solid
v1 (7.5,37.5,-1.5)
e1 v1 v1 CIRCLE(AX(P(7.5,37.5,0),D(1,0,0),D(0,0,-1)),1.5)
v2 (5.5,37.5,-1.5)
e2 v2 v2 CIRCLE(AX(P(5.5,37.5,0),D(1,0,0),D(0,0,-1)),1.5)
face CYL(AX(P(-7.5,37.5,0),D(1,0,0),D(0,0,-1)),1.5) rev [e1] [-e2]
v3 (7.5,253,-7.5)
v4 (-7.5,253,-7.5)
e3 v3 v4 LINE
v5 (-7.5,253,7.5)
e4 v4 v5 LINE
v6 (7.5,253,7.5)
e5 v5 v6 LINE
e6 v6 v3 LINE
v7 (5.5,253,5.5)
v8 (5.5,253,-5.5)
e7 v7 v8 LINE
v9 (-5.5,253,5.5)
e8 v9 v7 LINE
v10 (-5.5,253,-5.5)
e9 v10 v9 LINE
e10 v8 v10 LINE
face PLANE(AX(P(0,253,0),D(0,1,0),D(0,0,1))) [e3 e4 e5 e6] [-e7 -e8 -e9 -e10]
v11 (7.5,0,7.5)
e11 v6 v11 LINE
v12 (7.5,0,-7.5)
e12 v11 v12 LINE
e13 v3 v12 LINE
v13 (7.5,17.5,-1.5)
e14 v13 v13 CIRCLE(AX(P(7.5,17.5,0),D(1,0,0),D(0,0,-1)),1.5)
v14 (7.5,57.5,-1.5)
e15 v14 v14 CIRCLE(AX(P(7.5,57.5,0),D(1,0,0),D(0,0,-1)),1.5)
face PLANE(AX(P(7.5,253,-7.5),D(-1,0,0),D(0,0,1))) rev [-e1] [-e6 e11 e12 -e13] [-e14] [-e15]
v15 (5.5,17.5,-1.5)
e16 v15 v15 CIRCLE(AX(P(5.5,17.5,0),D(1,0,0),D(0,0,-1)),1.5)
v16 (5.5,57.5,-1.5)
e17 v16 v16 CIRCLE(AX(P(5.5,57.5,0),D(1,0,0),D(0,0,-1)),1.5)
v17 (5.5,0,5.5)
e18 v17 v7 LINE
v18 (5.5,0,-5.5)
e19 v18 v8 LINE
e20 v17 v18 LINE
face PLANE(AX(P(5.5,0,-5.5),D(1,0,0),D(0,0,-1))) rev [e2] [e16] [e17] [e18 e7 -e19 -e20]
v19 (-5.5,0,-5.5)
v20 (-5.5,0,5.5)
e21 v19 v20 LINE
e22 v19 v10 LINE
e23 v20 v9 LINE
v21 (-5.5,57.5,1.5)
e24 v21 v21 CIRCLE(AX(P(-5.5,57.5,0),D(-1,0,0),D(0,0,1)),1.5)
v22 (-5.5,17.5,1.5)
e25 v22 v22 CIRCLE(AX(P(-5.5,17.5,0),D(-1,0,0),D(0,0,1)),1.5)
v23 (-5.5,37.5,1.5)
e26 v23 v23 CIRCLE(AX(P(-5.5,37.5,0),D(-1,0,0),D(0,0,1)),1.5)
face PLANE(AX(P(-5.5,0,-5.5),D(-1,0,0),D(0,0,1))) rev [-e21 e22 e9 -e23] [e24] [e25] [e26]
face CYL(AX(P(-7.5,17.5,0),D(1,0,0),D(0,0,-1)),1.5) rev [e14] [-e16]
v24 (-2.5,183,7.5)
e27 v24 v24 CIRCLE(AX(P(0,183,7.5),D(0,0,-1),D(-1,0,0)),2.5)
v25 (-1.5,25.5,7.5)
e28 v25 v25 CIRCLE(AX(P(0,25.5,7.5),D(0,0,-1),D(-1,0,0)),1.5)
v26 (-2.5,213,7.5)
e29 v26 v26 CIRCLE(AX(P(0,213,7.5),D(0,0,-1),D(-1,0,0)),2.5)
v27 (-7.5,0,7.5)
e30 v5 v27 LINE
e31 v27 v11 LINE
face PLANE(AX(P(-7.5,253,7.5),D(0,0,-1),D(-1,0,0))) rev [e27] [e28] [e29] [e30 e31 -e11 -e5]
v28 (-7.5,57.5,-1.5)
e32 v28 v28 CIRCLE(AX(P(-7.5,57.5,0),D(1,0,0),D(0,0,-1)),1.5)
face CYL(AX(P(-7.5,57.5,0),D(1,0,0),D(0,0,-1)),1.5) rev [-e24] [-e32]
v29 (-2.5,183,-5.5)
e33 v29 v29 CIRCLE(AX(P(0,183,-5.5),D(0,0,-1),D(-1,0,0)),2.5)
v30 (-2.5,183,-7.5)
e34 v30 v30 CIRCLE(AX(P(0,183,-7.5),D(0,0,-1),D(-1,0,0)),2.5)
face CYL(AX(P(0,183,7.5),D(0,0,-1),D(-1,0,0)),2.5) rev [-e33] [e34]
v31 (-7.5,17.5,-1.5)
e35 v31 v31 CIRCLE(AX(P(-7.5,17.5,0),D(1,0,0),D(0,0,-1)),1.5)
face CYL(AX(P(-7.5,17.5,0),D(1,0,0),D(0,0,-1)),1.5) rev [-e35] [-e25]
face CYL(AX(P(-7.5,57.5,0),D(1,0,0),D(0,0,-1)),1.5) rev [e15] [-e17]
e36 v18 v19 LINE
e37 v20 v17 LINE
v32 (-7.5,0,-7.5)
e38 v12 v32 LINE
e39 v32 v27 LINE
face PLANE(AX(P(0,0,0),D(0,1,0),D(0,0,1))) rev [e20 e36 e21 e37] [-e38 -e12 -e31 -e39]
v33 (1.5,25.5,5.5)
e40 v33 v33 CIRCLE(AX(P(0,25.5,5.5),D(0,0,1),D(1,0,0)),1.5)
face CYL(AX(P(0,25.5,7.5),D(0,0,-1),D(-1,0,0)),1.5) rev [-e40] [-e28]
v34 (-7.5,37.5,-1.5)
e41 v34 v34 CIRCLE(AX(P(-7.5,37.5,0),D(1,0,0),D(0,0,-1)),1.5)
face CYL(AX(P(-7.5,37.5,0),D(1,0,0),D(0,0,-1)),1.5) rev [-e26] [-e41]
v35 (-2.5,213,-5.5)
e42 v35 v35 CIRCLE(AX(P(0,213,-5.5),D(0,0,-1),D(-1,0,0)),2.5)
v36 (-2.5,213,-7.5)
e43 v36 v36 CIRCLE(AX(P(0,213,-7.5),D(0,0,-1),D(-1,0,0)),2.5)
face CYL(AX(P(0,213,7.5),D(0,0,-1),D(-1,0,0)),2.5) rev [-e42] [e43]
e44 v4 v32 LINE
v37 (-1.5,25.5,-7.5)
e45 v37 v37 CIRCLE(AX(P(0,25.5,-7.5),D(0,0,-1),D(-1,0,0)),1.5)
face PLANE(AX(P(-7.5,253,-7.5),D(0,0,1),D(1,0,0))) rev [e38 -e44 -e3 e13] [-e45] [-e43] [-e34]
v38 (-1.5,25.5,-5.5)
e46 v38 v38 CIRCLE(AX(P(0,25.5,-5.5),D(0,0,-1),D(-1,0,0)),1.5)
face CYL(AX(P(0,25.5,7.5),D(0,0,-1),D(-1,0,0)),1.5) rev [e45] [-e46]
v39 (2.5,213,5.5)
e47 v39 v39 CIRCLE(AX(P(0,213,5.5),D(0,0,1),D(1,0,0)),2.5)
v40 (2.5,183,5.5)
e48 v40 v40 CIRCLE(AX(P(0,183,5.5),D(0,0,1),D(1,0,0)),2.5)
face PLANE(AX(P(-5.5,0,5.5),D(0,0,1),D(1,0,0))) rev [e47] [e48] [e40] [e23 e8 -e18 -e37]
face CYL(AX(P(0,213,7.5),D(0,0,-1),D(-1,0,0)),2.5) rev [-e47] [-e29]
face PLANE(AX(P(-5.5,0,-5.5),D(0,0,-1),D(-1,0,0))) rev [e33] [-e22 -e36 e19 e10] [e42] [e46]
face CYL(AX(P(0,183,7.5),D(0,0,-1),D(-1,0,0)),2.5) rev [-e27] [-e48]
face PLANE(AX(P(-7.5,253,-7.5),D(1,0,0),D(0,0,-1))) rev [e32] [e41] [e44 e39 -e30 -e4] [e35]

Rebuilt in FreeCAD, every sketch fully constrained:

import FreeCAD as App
import Part
import Sketcher

doc = App.newDocument("Part")
body = doc.addObject("PartDesign::Body", "Body")

# Sketch on XZ plane
sketch1 = doc.addObject("Sketcher::SketchObject", "Sketch")
body.addObject(sketch1)
sketch1.AttachmentSupport = (doc.XZ_Plane, [""])
sketch1.MapMode = "FlatFace"
sketch1.addGeometry([
    Part.LineSegment(App.Vector(-8, -8, 0), App.Vector(-8, 8, 0)),
    Part.LineSegment(App.Vector(-8, 8, 0), App.Vector(8, 8, 0)),
    Part.LineSegment(App.Vector(8, 8, 0), App.Vector(8, -8, 0)),
    Part.LineSegment(App.Vector(8, -8, 0), App.Vector(-8, -8, 0)),
], False)
sketch1.addConstraint([
    Sketcher.Constraint("Coincident", 0, 2, 1, 1),
    Sketcher.Constraint("Coincident", 1, 2, 2, 1),
    Sketcher.Constraint("Coincident", 2, 2, 3, 1),
    Sketcher.Constraint("Coincident", 3, 2, 0, 1),
    Sketcher.Constraint("Vertical", 0),
    Sketcher.Constraint("Horizontal", 1),
    Sketcher.Constraint("Vertical", 2),
    Sketcher.Constraint("Horizontal", 3),
    Sketcher.Constraint("Symmetric", 0, 2, 2, 2, -1, 1),
    Sketcher.Constraint("Equal", 3, 0),
    Sketcher.Constraint("DistanceX", 1, 1, 1, 2, 15.0),
])
pad1 = doc.addObject("PartDesign::Pad", "Pad")
body.addObject(pad1)
pad1.Profile = sketch1
pad1.Length = 253
pad1.Reversed = True

# Sketch on XZ plane
sketch2 = doc.addObject("Sketcher::SketchObject", "Sketch001")
body.addObject(sketch2)
sketch2.AttachmentSupport = (doc.XZ_Plane, [""])
sketch2.MapMode = "FlatFace"
sketch2.AttachmentOffset = App.Placement(App.Vector(0, 0, -253), App.Rotation())
sketch2.addGeometry([
    Part.LineSegment(App.Vector(-6, -6, 0), App.Vector(-6, 6, 0)),
    Part.LineSegment(App.Vector(-6, 6, 0), App.Vector(6, 6, 0)),
    Part.LineSegment(App.Vector(6, 6, 0), App.Vector(6, -6, 0)),
    Part.LineSegment(App.Vector(6, -6, 0), App.Vector(-6, -6, 0)),
], False)
sketch2.addConstraint([
    Sketcher.Constraint("Coincident", 0, 2, 1, 1),
    Sketcher.Constraint("Coincident", 1, 2, 2, 1),
    Sketcher.Constraint("Coincident", 2, 2, 3, 1),
    Sketcher.Constraint("Coincident", 3, 2, 0, 1),
    Sketcher.Constraint("Vertical", 0),
    Sketcher.Constraint("Horizontal", 1),
    Sketcher.Constraint("Vertical", 2),
    Sketcher.Constraint("Horizontal", 3),
    Sketcher.Constraint("Symmetric", 0, 2, 2, 2, -1, 1),
    Sketcher.Constraint("Equal", 3, 0),
    Sketcher.Constraint("DistanceX", 1, 1, 1, 2, 11.0),
])
pocket1 = doc.addObject("PartDesign::Pocket", "Pocket")
body.addObject(pocket1)
pocket1.Profile = sketch2
pocket1.Length = 253
pocket1.Reversed = True

# Sketch on YZ plane
sketch3 = doc.addObject("Sketcher::SketchObject", "Sketch002")
body.addObject(sketch3)
sketch3.AttachmentSupport = (doc.YZ_Plane, [""])
sketch3.MapMode = "FlatFace"
sketch3.AttachmentOffset = App.Placement(App.Vector(0, 0, 7.5), App.Rotation())
sketch3.addGeometry([
    Part.Circle(App.Vector(17.5, 0, 0), App.Vector(0, 0, 1), 1.5),
    Part.Circle(App.Vector(37.5, 0, 0), App.Vector(0, 0, 1), 1.5),
    Part.Circle(App.Vector(57.5, 0, 0), App.Vector(0, 0, 1), 1.5),
], False)
sketch3.addConstraint([
    Sketcher.Constraint("Equal", 0, 1),
    Sketcher.Constraint("Equal", 1, 2),
    Sketcher.Constraint("PointOnObject", 0, 3, -1),
    Sketcher.Constraint("PointOnObject", 1, 3, -1),
    Sketcher.Constraint("PointOnObject", 2, 3, -1),
    Sketcher.Constraint("Diameter", 0, 3.0),
    Sketcher.Constraint("DistanceX", 0, 3, 1, 3, 20.0),
    Sketcher.Constraint("DistanceX", 1, 3, 2, 3, 20.0),
    Sketcher.Constraint("DistanceX", -1, 1, 0, 3, 17.5),
])
pocket2 = doc.addObject("PartDesign::Pocket", "Pocket001")
body.addObject(pocket2)
pocket2.Profile = sketch3
pocket2.Length = 15

# Sketch on XY plane
sketch4 = doc.addObject("Sketcher::SketchObject", "Sketch003")
body.addObject(sketch4)
sketch4.AttachmentSupport = (doc.XY_Plane, [""])
sketch4.MapMode = "FlatFace"
sketch4.AttachmentOffset = App.Placement(App.Vector(0, 0, -7.5), App.Rotation())
sketch4.addGeometry(Part.Circle(App.Vector(0, 25.5, 0), App.Vector(0, 0, 1), 1.5), False)
sketch4.addConstraint([
    Sketcher.Constraint("PointOnObject", 0, 3, -2),
    Sketcher.Constraint("Diameter", 0, 3.0),
    Sketcher.Constraint("DistanceY", -1, 1, 0, 3, 25.5),
])
pocket3 = doc.addObject("PartDesign::Pocket", "Pocket002")
body.addObject(pocket3)
pocket3.Profile = sketch4
pocket3.Length = 15
pocket3.Reversed = True

# Sketch on XY plane
sketch5 = doc.addObject("Sketcher::SketchObject", "Sketch004")
body.addObject(sketch5)
sketch5.AttachmentSupport = (doc.XY_Plane, [""])
sketch5.MapMode = "FlatFace"
sketch5.AttachmentOffset = App.Placement(App.Vector(0, 0, -7.5), App.Rotation())
sketch5.addGeometry([
    Part.Circle(App.Vector(0, 213, 0), App.Vector(0, 0, 1), 2.5),
    Part.Circle(App.Vector(0, 183, 0), App.Vector(0, 0, 1), 2.5),
], False)
sketch5.addConstraint([
    Sketcher.Constraint("Equal", 0, 1),
    Sketcher.Constraint("PointOnObject", 0, 3, -2),
    Sketcher.Constraint("PointOnObject", 1, 3, -2),
    Sketcher.Constraint("Diameter", 0, 5.0),
    Sketcher.Constraint("DistanceY", -1, 1, 0, 3, 213.0),
    Sketcher.Constraint("DistanceY", -1, 1, 1, 3, 183.0),
])
pocket4 = doc.addObject("PartDesign::Pocket", "Pocket003")
body.addObject(pocket4)
pocket4.Profile = sketch5
pocket4.Length = 15
pocket4.Reversed = True

doc.recompute()
